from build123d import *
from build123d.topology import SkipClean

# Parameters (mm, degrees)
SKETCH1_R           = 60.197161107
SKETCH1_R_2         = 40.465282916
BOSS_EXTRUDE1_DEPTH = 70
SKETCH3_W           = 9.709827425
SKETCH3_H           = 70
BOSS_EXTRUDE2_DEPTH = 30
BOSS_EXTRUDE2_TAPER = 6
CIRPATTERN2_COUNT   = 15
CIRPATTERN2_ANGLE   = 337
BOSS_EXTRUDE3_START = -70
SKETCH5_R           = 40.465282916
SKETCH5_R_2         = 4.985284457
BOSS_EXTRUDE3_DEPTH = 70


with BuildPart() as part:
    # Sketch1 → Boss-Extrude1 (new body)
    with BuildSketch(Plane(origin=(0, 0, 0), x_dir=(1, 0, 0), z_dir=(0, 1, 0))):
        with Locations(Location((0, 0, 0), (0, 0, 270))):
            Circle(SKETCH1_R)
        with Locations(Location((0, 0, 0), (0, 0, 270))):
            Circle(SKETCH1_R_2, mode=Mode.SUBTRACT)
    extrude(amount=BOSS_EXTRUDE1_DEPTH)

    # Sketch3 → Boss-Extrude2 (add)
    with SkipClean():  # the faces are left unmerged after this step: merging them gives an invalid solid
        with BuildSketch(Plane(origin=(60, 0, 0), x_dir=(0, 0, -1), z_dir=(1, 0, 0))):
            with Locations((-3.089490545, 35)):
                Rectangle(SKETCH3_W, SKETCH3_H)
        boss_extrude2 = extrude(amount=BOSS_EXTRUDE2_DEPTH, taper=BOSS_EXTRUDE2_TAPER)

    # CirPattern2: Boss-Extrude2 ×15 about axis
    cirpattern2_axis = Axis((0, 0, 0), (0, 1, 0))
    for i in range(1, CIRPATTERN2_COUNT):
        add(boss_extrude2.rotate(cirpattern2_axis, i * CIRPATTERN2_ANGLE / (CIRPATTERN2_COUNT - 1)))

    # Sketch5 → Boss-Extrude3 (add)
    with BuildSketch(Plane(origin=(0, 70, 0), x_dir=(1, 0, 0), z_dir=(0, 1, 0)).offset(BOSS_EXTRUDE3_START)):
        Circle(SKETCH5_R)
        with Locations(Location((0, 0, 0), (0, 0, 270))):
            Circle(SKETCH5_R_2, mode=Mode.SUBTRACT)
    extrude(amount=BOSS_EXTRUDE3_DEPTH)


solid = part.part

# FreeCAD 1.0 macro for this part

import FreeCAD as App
import Part
import Sketcher
from FreeCAD import Vector
Q = App.Units.Quantity


def add_polygon(sketch, points):
    """Adds a closed chain of lines whose ends are joined by coincident constraints."""
    first, n = sketch.GeometryCount, len(points)
    for a, b in zip(points, points[1:] + points[:1]):
        sketch.addGeometry(Part.LineSegment(App.Vector(*a, 0), App.Vector(*b, 0)), False)
    for i in range(n):
        sketch.addConstraint(Sketcher.Constraint("Coincident", first + i, 2, first + (i + 1) % n, 1))

doc = App.newDocument("Part")
body = doc.addObject("PartDesign::Body", "Body")

sketch1 = body.newObject("Sketcher::SketchObject", "Sketch")
sketch1.AttachmentSupport = (doc.getObject("XZ_Plane"), [""])
sketch1.MapMode = "FlatFace"
sketch1.addGeometry([
    Part.Circle(Vector(0, 0, 0), Vector(0, 0, 1), 60.197161),
    Part.Circle(Vector(0, 0, 0), Vector(0, 0, 1), 40.465283),
], False)
sketch1.addConstraint([
    Sketcher.Constraint("Coincident", 0, 3, -1, 1),
    Sketcher.Constraint("Coincident", 1, 3, -1, 1),
    Sketcher.Constraint("Diameter", 0, Q("120.394322 mm")),
    Sketcher.Constraint("Diameter", 1, Q("80.930566 mm")),
])
pad1 = body.newObject("PartDesign::Pad", "Pad")
pad1.Profile = sketch1
pad1.Length = 70
pad1.Reversed = True

sketch2 = body.newObject("Sketcher::SketchObject", "Sketch001")
sketch2.AttachmentSupport = (doc.getObject("YZ_Plane"), [""])
sketch2.MapMode = "FlatFace"
sketch2.AttachmentOffset = App.Placement(Vector(0, 0, 60), App.Rotation())
add_polygon(sketch2, [(70, 7.944404), (0, 7.944404), (0, -1.765423), (70, -1.765423)])
sketch2.addConstraint([
    Sketcher.Constraint("Horizontal", 0),
    Sketcher.Constraint("Vertical", 1),
    Sketcher.Constraint("Horizontal", 2),
    Sketcher.Constraint("Vertical", 3),
    Sketcher.Constraint("PointOnObject", 0, 2, -2),
    Sketcher.Constraint("DistanceX", 0, 2, 0, 1, Q("70 mm")),
    Sketcher.Constraint("DistanceY", 1, 2, 1, 1, Q("9.709827 mm")),
    Sketcher.Constraint("DistanceY", -1, 1, 0, 2, Q("7.944404 mm")),
])
pad2 = body.newObject("PartDesign::Pad", "Pad001")
pad2.Profile = sketch2
pad2.Length = 30
pad2.TaperAngle = -6
doc.recompute()

polarpattern = body.newObject("PartDesign::PolarPattern", "PolarPattern")
polarpattern.Originals = [pad2]
polarpattern.Axis = (doc.getObject("Y_Axis"), [""])
polarpattern.Angle = 337
polarpattern.Occurrences = 15
body.Tip = polarpattern

sketch3 = body.newObject("Sketcher::SketchObject", "Sketch002")
sketch3.AttachmentSupport = (doc.getObject("XZ_Plane"), [""])
sketch3.MapMode = "FlatFace"
sketch3.addGeometry([
    Part.Circle(Vector(0, 0, 0), Vector(0, 0, 1), 40.465283),
    Part.Circle(Vector(0, 0, 0), Vector(0, 0, 1), 4.985284),
], False)
sketch3.addConstraint([
    Sketcher.Constraint("Coincident", 0, 3, -1, 1),
    Sketcher.Constraint("Coincident", 1, 3, -1, 1),
    Sketcher.Constraint("Diameter", 1, Q("9.970569 mm")),
    Sketcher.Constraint("Diameter", 0, Q("80.930566 mm")),
])
pad3 = body.newObject("PartDesign::Pad", "Pad002")
pad3.Profile = sketch3
pad3.Length = 70
pad3.Reversed = True

doc.recompute()
